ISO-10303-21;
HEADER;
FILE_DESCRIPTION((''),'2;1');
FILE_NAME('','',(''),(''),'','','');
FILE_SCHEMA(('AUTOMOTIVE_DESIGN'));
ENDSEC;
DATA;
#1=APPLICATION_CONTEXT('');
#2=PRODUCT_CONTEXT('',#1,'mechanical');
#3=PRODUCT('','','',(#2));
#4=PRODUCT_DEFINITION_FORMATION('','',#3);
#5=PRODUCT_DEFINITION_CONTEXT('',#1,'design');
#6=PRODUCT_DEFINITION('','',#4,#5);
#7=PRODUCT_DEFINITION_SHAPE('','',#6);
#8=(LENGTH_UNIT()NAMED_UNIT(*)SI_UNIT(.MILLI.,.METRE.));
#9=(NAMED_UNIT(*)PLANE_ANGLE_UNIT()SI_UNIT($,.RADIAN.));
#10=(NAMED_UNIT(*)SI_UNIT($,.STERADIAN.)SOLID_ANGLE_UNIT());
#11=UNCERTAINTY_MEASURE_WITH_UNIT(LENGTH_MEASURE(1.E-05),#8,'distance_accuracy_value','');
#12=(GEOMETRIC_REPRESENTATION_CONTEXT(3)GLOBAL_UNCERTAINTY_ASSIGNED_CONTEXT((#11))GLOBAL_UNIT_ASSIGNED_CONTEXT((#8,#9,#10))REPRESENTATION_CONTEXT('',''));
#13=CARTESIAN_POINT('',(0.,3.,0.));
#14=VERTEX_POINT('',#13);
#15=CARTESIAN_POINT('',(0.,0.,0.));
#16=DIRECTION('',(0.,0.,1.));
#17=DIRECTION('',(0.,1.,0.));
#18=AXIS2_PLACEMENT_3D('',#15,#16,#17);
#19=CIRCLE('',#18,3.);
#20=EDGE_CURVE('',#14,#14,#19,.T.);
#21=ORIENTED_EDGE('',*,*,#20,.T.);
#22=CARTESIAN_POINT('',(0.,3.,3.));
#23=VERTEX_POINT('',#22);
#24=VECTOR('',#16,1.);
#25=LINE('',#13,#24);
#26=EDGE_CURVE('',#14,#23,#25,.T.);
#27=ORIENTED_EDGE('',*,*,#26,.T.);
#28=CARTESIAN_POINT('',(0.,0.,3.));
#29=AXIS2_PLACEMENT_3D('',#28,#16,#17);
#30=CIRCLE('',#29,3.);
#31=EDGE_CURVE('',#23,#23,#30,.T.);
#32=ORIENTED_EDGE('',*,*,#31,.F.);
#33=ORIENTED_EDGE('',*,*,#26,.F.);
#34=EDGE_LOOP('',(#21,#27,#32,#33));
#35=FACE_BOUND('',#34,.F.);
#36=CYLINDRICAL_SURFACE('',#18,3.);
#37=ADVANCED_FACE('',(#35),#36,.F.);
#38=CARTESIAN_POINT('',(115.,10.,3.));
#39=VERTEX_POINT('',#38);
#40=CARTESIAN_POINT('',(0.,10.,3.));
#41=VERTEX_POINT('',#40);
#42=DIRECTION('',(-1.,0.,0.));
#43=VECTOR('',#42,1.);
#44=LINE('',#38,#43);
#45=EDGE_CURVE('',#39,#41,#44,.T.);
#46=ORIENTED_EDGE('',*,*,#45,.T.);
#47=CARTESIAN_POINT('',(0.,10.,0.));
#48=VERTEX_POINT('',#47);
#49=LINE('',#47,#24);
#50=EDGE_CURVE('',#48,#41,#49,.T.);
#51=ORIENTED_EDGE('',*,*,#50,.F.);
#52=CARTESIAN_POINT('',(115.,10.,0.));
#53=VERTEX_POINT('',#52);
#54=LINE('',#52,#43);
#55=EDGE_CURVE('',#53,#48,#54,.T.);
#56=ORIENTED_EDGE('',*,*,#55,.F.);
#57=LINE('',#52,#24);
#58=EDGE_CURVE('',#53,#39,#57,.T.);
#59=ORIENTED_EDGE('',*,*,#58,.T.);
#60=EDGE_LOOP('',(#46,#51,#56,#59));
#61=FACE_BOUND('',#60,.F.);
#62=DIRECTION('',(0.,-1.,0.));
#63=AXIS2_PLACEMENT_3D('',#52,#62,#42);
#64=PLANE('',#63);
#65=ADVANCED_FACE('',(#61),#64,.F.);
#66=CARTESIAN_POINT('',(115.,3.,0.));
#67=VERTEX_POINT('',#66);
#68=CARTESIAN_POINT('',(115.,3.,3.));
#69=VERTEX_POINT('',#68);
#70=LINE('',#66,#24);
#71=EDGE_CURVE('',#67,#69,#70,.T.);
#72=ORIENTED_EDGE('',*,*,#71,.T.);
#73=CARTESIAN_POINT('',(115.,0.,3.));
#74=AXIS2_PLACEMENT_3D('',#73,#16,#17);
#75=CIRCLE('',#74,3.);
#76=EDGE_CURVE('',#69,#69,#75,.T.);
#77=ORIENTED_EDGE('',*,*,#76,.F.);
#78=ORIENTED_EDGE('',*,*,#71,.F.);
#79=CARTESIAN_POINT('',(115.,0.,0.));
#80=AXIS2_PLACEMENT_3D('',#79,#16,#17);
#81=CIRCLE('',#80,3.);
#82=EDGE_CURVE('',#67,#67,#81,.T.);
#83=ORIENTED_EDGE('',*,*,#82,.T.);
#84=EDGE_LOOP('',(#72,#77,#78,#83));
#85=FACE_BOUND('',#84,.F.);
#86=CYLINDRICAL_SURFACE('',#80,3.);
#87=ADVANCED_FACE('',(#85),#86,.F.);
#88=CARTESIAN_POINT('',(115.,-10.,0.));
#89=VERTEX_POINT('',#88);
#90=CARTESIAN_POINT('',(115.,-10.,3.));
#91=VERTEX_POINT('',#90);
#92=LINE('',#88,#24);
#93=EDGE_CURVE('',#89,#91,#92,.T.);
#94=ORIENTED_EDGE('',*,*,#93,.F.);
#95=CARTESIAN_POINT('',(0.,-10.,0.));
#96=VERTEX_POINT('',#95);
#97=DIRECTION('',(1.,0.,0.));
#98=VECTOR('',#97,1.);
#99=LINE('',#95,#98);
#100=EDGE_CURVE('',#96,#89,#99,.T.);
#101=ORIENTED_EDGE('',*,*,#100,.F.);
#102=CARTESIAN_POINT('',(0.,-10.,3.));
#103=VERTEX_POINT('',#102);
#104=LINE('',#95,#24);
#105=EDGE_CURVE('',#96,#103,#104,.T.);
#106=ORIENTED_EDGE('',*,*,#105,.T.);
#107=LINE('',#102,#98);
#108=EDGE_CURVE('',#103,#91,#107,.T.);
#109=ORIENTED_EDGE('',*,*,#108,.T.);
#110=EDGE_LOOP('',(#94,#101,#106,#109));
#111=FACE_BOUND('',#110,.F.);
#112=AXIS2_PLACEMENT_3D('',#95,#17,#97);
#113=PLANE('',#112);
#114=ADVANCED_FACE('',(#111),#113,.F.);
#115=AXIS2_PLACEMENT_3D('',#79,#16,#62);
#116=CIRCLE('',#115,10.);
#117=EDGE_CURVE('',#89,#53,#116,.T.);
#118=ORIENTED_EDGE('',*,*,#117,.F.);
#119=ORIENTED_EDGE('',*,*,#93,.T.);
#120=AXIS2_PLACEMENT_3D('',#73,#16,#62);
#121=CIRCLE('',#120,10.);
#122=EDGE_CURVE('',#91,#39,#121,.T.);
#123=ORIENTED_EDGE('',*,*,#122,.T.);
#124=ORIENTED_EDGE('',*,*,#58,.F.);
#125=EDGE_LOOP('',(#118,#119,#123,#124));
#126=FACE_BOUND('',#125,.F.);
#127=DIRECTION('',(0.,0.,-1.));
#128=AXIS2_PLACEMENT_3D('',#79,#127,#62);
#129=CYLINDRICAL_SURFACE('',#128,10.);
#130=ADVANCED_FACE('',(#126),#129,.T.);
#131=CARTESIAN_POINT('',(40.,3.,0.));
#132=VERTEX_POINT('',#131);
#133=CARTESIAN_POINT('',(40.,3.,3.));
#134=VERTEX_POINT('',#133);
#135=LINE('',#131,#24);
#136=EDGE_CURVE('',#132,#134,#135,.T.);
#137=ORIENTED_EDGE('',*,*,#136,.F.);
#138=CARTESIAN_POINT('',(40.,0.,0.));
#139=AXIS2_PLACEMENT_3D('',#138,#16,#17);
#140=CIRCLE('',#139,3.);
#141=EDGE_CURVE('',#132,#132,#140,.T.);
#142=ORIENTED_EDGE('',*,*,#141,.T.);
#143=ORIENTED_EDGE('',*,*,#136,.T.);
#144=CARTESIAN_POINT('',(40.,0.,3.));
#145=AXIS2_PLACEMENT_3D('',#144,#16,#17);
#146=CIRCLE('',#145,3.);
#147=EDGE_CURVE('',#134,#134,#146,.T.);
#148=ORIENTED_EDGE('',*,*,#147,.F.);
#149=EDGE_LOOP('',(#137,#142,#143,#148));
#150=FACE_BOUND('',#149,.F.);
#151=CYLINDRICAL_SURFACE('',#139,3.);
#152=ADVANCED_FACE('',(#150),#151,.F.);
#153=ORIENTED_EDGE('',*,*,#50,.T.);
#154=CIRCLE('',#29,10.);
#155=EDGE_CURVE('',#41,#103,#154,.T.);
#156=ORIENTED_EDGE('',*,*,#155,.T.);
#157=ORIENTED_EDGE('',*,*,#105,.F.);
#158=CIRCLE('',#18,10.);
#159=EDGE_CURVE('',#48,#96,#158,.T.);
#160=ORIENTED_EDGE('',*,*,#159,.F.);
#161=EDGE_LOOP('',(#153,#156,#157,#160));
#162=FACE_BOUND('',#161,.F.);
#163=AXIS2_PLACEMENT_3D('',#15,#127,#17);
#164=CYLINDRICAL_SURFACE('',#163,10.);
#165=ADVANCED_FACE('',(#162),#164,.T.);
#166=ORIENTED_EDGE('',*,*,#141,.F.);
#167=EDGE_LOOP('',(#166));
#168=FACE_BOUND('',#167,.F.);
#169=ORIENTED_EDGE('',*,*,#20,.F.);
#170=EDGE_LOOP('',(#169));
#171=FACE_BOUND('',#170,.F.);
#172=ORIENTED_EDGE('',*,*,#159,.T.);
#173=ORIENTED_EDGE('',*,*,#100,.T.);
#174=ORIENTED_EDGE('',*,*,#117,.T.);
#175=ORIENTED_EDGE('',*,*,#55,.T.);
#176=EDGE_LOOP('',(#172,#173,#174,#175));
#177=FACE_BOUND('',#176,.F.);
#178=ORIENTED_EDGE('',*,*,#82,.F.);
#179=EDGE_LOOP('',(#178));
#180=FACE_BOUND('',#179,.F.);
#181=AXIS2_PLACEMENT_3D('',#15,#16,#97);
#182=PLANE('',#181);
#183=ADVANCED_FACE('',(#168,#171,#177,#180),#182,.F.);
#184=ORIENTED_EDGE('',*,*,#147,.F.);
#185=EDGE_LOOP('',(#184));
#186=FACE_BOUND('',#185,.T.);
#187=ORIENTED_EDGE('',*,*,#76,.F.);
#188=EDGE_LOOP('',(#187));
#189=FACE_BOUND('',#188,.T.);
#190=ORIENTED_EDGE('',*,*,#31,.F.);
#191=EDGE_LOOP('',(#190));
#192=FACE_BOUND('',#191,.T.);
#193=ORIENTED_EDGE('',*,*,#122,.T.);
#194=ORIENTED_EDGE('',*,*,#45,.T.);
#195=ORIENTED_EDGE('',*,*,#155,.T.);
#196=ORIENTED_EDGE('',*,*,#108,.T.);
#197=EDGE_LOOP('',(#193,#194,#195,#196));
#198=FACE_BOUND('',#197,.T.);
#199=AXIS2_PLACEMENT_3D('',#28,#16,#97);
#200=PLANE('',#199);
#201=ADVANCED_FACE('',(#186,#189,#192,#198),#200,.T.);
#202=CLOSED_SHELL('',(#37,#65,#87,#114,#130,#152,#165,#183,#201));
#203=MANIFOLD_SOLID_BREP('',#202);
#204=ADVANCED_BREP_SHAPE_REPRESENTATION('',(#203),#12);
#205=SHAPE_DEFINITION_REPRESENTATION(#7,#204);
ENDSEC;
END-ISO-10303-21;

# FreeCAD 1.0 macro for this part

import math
import FreeCAD as App
import Part
import Sketcher
Q = App.Units.Quantity

doc = App.newDocument("Part")
body = doc.addObject("PartDesign::Body", "Body")

# Sketch on XY plane
sketch1 = body.newObject("Sketcher::SketchObject", "Sketch")
sketch1.AttachmentSupport = (doc.getObject("XY_Plane"), [""])
sketch1.MapMode = "FlatFace"
sketch1.addGeometry(Part.ArcOfCircle(Part.Circle(App.Vector(0, 0, 0), App.Vector(0, 0, 1), 10), math.radians(90), math.radians(270)), False)
sketch1.addGeometry(Part.LineSegment(App.Vector(0, -10, 0), App.Vector(115, -10, 0)), False)
sketch1.addGeometry(Part.ArcOfCircle(Part.Circle(App.Vector(115, 0, 0), App.Vector(0, 0, 1), 10), math.radians(-90), math.radians(90)), False)
sketch1.addGeometry(Part.LineSegment(App.Vector(115, 10, 0), App.Vector(0, 10, 0)), False)
sketch1.addConstraint(Sketcher.Constraint("Tangent", 0, 2, 1, 1))
sketch1.addConstraint(Sketcher.Constraint("Tangent", 1, 2, 2, 1))
sketch1.addConstraint(Sketcher.Constraint("Tangent", 2, 2, 3, 1))
sketch1.addConstraint(Sketcher.Constraint("Tangent", 3, 2, 0, 1))
sketch1.addConstraint(Sketcher.Constraint("Horizontal", 1))
sketch1.addConstraint(Sketcher.Constraint("Horizontal", 3))
sketch1.addConstraint(Sketcher.Constraint("Coincident", 0, 3, -1, 1))
sketch1.addConstraint(Sketcher.Constraint("Radius", 0, Q("10 mm")))
sketch1.addConstraint(Sketcher.Constraint("DistanceX", 1, 1, 1, 2, Q("115 mm")))
pad1 = body.newObject("PartDesign::Pad", "Pad")
pad1.Profile = sketch1
pad1.Length = 3

# Sketch on XY plane
sketch2 = body.newObject("Sketcher::SketchObject", "Sketch001")
sketch2.AttachmentSupport = (doc.getObject("XY_Plane"), [""])
sketch2.MapMode = "FlatFace"
sketch2.addGeometry(Part.Circle(App.Vector(115, 0, 0), App.Vector(0, 0, 1), 3), False)
sketch2.addGeometry(Part.Circle(App.Vector(40, 0, 0), App.Vector(0, 0, 1), 3), False)
sketch2.addConstraint(Sketcher.Constraint("Equal", 0, 1))
sketch2.addConstraint(Sketcher.Constraint("PointOnObject", 0, 3, -1))
sketch2.addConstraint(Sketcher.Constraint("PointOnObject", 1, 3, -1))
sketch2.addConstraint(Sketcher.Constraint("Diameter", 0, Q("6 mm")))
sketch2.addConstraint(Sketcher.Constraint("DistanceX", -1, 1, 0, 3, Q("115 mm")))
sketch2.addConstraint(Sketcher.Constraint("DistanceX", -1, 1, 1, 3, Q("40 mm")))
doc.recompute()
hole = body.newObject("PartDesign::Hole", "Hole")
hole.Profile = sketch2
hole.ThreadType = "None"
hole.Diameter = 6
hole.DepthType = "ThroughAll"
hole.Reversed = True

# Sketch on XY plane
sketch3 = body.newObject("Sketcher::SketchObject", "Sketch002")
sketch3.AttachmentSupport = (doc.getObject("XY_Plane"), [""])
sketch3.MapMode = "FlatFace"
sketch3.addGeometry(Part.Circle(App.Vector(0, 0, 0), App.Vector(0, 0, 1), 3), False)
sketch3.addConstraint(Sketcher.Constraint("Coincident", 0, 3, -1, 1))
sketch3.addConstraint(Sketcher.Constraint("Diameter", 0, Q("6 mm")))
doc.recompute()
hole2 = body.newObject("PartDesign::Hole", "Hole001")
hole2.Profile = sketch3
hole2.ThreadType = "None"
hole2.Diameter = 6
hole2.DepthType = "ThroughAll"
hole2.Reversed = True

doc.recompute()
